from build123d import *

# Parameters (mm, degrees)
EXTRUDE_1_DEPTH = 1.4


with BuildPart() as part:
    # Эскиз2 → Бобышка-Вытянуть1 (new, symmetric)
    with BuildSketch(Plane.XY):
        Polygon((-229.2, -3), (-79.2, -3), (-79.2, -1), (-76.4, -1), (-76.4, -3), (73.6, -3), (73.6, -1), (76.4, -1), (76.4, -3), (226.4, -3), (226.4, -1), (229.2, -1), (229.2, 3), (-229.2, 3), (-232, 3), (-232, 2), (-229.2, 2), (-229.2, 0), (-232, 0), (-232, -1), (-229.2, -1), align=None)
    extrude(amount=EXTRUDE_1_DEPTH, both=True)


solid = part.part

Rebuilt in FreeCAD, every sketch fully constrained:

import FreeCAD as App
import Part
import Sketcher
from FreeCAD import Vector


def add_polygon(sketch, points):
    """Adds a closed chain of lines whose ends are joined by coincident constraints."""
    first, n = sketch.GeometryCount, len(points)
    for a, b in zip(points, points[1:] + points[:1]):
        sketch.addGeometry(Part.LineSegment(App.Vector(*a, 0), App.Vector(*b, 0)), False)
    for i in range(n):
        sketch.addConstraint(Sketcher.Constraint("Coincident", first + i, 2, first + (i + 1) % n, 1))

doc = App.newDocument("Part")
body = doc.addObject("PartDesign::Body", "Body")

# Sketch on XY plane
sketch1 = doc.addObject("Sketcher::SketchObject", "Sketch")
body.addObject(sketch1)
sketch1.AttachmentSupport = (doc.XY_Plane, [""])
sketch1.MapMode = "FlatFace"
add_polygon(sketch1, [(-229.2, -3), (-79.2, -3), (-79.2, -1), (-76.4, -1), (-76.4, -3), (73.6, -3), (73.6, -1), (76.4, -1), (76.4, -3), (226.4, -3), (226.4, -1), (229.2, -1), (229.2, 3), (-232, 3), (-232, 2), (-229.2, 2), (-229.2, 0), (-232, 0), (-232, -1), (-229.2, -1)])  # lines 0-19
sketch1.addConstraint([
    Sketcher.Constraint("Horizontal", 0),
    Sketcher.Constraint("Vertical", 1),
    Sketcher.Constraint("Horizontal", 2),
    Sketcher.Constraint("Vertical", 3),
    Sketcher.Constraint("Horizontal", 4),
    Sketcher.Constraint("Vertical", 5),
    Sketcher.Constraint("Horizontal", 6),
    Sketcher.Constraint("Vertical", 7),
    Sketcher.Constraint("Horizontal", 8),
    Sketcher.Constraint("Vertical", 9),
    Sketcher.Constraint("Horizontal", 10),
    Sketcher.Constraint("Vertical", 11),
    Sketcher.Constraint("Horizontal", 12),
    Sketcher.Constraint("Vertical", 13),
    Sketcher.Constraint("Horizontal", 14),
    Sketcher.Constraint("Vertical", 15),
    Sketcher.Constraint("Horizontal", 16),
    Sketcher.Constraint("Vertical", 17),
    Sketcher.Constraint("Horizontal", 18),
    Sketcher.Constraint("Vertical", 19),
    Sketcher.Constraint("Symmetric", 11, 2, 19, 2, -1, 1),
    Sketcher.Constraint("Symmetric", 2, 2, 6, 2, -2),
    Sketcher.Constraint("PointOnObject", 15, 2, -1),
    Sketcher.Constraint("Horizontal", 0, 2, 3, 2),
    Sketcher.Constraint("Horizontal", 4, 2, 7, 2),
    Sketcher.Constraint("Horizontal", 6, 2, 9, 2),
    Sketcher.Constraint("Horizontal", 10, 2, 17, 2),
    Sketcher.Constraint("Vertical", 13, 2, 16, 2),
    Sketcher.Constraint("Vertical", 15, 2, 18, 2),
    Sketcher.Constraint("Equal", 0, 4),
    Sketcher.Constraint("Equal", 2, 6),
    Sketcher.Constraint("Equal", 4, 8),
    Sketcher.Constraint("Equal", 10, 14),
    Sketcher.Constraint("Equal", 9, 15),
    Sketcher.Constraint("DistanceX", 0, 1, 0, 2, 150.0),
    Sketcher.Constraint("DistanceY", 1, 1, 1, 2, 2.0),
    Sketcher.Constraint("DistanceY", 11, 1, 11, 2, 4.0),
    Sketcher.Constraint("DistanceX", 2, 1, 2, 2, 2.8),
])
pad1 = doc.addObject("PartDesign::Pad", "Pad")
body.addObject(pad1)
pad1.Profile = sketch1
pad1.Length = 2.8
pad1.Midplane = True

doc.recompute()
